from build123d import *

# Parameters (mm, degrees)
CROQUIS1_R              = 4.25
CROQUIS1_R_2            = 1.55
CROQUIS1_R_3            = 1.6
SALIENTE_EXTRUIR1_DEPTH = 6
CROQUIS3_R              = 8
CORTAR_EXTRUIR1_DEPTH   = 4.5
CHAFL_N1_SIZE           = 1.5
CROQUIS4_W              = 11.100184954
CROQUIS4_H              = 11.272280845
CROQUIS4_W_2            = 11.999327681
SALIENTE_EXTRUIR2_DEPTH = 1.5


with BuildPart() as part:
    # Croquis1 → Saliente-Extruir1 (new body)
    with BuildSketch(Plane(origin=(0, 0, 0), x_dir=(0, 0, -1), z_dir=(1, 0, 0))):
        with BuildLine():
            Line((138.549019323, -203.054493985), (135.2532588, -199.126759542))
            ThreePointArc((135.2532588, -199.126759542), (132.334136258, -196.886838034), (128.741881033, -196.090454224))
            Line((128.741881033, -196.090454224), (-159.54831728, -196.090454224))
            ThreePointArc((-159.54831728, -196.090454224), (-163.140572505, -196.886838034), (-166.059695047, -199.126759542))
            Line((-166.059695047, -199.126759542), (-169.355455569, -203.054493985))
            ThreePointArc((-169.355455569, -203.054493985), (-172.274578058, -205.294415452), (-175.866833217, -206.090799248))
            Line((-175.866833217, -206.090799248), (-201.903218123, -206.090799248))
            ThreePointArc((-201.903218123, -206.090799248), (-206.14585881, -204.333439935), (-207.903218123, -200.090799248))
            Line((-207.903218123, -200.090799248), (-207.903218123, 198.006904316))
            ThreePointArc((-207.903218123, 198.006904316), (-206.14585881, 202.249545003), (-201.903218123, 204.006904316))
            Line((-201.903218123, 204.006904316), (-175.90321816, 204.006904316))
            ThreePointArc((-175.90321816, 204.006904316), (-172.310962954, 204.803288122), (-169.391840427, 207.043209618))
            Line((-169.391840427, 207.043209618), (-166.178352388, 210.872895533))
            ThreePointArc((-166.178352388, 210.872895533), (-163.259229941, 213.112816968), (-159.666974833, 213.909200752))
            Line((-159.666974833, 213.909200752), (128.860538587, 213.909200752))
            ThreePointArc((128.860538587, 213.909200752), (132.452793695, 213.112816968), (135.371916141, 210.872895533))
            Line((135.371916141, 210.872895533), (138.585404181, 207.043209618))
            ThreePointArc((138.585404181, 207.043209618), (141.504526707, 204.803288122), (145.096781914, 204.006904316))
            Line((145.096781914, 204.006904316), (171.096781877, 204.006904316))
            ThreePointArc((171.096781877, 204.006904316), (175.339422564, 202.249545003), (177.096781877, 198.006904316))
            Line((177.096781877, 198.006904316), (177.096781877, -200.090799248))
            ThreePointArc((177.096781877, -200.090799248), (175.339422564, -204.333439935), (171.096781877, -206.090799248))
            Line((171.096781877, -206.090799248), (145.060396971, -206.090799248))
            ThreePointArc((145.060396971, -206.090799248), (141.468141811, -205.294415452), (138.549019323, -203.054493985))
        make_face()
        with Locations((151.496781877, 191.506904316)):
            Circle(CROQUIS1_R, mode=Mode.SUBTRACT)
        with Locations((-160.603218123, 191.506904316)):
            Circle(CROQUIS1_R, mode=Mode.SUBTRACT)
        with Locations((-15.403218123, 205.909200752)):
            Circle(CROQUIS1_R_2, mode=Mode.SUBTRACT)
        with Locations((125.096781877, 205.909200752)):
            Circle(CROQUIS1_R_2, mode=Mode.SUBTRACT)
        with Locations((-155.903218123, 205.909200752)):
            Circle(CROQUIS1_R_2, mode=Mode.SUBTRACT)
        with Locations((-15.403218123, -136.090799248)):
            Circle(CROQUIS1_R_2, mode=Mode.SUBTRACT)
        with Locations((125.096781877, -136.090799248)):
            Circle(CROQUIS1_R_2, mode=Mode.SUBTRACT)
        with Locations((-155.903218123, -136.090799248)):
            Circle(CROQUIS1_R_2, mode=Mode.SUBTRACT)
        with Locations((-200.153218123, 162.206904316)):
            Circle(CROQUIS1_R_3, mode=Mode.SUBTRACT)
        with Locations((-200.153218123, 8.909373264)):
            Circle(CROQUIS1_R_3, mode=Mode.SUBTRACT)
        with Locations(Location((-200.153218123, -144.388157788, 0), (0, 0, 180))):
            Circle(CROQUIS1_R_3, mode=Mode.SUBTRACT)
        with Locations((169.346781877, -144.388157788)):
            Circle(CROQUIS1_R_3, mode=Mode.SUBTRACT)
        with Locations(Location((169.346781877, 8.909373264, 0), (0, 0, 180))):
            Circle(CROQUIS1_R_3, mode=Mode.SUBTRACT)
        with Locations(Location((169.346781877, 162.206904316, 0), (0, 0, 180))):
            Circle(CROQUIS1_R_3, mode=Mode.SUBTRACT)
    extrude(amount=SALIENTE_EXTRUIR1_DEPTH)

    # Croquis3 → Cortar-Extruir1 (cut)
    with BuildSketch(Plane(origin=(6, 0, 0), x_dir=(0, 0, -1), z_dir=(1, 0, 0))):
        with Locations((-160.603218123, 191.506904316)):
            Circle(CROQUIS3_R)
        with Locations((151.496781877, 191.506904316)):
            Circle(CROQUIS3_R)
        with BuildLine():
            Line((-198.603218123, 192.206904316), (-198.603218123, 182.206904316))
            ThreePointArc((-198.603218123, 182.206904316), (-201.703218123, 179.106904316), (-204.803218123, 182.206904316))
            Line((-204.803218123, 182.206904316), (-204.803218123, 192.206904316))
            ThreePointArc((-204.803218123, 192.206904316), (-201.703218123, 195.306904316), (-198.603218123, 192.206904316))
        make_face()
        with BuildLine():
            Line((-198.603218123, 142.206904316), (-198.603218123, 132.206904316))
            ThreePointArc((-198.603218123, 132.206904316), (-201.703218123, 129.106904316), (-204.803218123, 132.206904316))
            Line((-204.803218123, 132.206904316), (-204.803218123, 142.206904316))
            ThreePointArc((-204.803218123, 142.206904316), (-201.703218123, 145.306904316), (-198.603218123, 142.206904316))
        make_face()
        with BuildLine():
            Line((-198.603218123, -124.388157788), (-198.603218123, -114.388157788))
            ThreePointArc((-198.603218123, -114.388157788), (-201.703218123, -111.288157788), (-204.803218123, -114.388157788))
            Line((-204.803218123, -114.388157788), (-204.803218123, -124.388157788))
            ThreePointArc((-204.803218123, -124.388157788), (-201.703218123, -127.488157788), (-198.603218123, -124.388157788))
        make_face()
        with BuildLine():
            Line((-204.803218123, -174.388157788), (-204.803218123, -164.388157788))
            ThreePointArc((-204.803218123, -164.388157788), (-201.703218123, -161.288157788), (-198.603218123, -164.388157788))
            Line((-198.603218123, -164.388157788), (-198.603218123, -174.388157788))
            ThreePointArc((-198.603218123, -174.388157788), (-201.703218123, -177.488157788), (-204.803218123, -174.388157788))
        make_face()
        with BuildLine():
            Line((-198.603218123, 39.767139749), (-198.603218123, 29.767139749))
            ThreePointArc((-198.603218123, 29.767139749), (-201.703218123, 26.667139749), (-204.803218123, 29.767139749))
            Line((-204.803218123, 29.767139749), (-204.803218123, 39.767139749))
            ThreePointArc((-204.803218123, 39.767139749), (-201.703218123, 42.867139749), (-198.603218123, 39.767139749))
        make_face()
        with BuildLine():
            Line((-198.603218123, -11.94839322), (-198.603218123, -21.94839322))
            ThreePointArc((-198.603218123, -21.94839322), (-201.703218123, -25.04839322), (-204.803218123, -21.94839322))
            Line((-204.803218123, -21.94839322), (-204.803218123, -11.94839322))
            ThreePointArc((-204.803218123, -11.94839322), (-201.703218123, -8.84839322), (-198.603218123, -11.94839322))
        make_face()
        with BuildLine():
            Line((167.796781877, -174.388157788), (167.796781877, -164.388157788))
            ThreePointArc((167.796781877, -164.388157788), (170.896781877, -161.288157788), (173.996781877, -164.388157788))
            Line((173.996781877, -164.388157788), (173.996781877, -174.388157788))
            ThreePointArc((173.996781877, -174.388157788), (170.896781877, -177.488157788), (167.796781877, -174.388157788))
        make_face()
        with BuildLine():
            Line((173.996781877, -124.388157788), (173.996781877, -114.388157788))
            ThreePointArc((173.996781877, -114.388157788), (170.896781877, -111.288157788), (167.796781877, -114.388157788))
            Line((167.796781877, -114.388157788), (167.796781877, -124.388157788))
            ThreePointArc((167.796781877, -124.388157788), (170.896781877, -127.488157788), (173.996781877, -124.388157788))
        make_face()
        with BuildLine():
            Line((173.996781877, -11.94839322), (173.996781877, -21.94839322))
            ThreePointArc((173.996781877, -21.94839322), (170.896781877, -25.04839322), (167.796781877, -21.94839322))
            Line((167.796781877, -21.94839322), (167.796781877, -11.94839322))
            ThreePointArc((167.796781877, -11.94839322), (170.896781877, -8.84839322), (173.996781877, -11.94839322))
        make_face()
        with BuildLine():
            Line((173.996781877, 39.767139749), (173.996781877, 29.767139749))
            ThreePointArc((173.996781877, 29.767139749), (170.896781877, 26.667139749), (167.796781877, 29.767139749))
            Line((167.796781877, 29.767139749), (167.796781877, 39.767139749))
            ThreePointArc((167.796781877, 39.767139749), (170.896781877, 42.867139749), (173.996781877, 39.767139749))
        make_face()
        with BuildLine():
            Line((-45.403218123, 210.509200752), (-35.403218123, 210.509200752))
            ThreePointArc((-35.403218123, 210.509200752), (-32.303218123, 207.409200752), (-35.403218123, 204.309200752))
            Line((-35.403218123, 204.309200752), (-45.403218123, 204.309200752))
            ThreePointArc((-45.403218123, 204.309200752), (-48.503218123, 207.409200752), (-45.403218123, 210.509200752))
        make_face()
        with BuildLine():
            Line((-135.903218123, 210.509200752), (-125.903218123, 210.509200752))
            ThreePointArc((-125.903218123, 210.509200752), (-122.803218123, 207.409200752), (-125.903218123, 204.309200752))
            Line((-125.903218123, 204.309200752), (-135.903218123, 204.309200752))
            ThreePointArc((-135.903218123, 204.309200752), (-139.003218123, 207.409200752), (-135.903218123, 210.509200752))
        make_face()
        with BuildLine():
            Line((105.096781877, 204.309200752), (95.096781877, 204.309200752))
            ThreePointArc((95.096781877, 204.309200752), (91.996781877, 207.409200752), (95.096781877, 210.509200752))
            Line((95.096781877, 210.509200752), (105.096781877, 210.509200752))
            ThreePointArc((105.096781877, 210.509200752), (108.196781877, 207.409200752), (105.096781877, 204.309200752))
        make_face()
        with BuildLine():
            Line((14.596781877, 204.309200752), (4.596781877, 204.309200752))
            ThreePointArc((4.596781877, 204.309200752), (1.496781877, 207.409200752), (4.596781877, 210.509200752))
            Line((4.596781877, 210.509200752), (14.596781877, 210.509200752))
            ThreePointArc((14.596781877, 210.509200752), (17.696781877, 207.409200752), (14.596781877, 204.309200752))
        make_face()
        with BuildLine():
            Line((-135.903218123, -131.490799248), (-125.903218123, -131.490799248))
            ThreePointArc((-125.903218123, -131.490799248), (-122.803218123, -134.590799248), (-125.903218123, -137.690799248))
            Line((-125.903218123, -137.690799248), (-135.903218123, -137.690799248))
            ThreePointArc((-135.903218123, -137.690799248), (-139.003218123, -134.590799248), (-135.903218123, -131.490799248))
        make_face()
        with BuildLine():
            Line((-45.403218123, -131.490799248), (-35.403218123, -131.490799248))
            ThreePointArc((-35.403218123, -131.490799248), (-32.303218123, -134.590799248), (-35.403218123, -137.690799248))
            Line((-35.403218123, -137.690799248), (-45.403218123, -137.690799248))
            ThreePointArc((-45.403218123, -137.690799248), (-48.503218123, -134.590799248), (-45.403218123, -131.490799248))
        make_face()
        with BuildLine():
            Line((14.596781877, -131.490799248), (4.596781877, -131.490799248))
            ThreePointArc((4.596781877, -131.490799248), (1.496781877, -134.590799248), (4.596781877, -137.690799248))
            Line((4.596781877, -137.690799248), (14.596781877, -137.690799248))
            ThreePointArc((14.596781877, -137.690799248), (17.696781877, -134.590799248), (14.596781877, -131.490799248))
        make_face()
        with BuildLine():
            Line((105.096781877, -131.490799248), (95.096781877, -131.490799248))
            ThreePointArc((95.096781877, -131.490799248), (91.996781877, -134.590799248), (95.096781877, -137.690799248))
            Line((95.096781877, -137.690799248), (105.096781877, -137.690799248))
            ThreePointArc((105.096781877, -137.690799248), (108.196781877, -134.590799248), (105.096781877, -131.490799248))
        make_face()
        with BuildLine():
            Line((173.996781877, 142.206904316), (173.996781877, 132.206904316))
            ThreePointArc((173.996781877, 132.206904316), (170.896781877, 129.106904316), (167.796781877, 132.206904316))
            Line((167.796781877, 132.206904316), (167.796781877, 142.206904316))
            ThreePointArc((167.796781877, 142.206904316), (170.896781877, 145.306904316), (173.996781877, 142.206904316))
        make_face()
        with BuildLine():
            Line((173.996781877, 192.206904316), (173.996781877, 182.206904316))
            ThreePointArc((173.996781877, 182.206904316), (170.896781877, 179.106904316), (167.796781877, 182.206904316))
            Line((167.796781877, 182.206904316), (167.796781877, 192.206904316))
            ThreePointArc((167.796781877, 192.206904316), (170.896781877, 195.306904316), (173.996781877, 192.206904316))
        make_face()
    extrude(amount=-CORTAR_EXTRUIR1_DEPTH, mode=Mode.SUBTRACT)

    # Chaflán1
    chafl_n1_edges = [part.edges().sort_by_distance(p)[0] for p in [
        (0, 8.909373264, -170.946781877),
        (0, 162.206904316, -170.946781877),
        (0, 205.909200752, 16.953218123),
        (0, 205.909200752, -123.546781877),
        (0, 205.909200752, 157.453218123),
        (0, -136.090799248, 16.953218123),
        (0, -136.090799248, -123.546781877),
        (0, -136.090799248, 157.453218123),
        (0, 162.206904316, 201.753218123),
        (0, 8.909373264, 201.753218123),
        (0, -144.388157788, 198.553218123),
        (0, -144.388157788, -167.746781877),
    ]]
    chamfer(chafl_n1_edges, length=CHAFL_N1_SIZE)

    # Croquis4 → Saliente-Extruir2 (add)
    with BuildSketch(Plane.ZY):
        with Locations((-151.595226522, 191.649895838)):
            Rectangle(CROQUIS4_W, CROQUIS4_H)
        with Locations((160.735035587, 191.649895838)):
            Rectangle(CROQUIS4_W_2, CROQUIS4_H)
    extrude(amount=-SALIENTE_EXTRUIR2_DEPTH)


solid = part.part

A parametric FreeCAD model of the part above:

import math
import FreeCAD as App
import Part
import Sketcher
Q = App.Units.Quantity


def edges_at(feature, points):
    """Names of the edges that pass closest to the given points."""
    edges = feature.Shape.Edges
    near = lambda p: min(range(len(edges)), key=lambda i: edges[i].distToShape(Part.Vertex(*p))[0])
    return sorted({f"Edge{near(p) + 1}" for p in points})


def add_polygon(sketch, points):
    """Adds a closed chain of lines whose ends are joined by coincident constraints."""
    first, n = sketch.GeometryCount, len(points)
    for a, b in zip(points, points[1:] + points[:1]):
        sketch.addGeometry(Part.LineSegment(App.Vector(*a, 0), App.Vector(*b, 0)), False)
    for i in range(n):
        sketch.addConstraint(Sketcher.Constraint("Coincident", first + i, 2, first + (i + 1) % n, 1))

doc = App.newDocument("Part")
params = doc.addObject("Spreadsheet::Sheet", "Params")
for row, (alias, value) in enumerate([
    ("sketch1_radius", "6 mm"),
    ("sketch1_diameter", "3.2 mm"),
    ("sketch1_diameter2", "3.1 mm"),
    ("sketch1_diameter3", "8.5 mm"),
    ("sketch1_radius2", "8.5 mm"),
    ("pad1_length", "6 mm"),
    ("sketch2_diameter", "16 mm"),
    ("sketch2_radius", "3.1 mm"),
    ("sketch2_width", "10 mm"),
    ("pocket1_length", "4.5 mm"),
    ("chamfer_size", "1.5 mm"),
    ("pad2_length", "1.5 mm"),
], start=1):
    params.set(f"A{row}", alias)
    params.set(f"B{row}", "=" + value)
    params.setAlias(f"B{row}", alias)

body = doc.addObject("PartDesign::Body", "Body")

# Sketch on YZ plane
sketch1 = body.newObject("Sketcher::SketchObject", "Sketch")
sketch1.AttachmentSupport = (doc.getObject("YZ_Plane"), [""])
sketch1.MapMode = "FlatFace"
sketch1.addGeometry([
    Part.LineSegment(App.Vector(-199.12676, -135.253259, 0), App.Vector(-203.054494, -138.549019, 0)),  # 0
    Part.ArcOfCircle(Part.Circle(App.Vector(-197.590799, -145.060397, 0), App.Vector(0, 0, 1), 8.5), math.radians(130), math.radians(180)),  # 1
    Part.LineSegment(App.Vector(-206.090799, -145.060397, 0), App.Vector(-206.090799, -171.096782, 0)),  # 2
    Part.ArcOfCircle(Part.Circle(App.Vector(-200.090799, -171.096782, 0), App.Vector(0, 0, 1), 6), math.radians(180), math.radians(270)),  # 3
    Part.LineSegment(App.Vector(-200.090799, -177.096782, 0), App.Vector(198.006904, -177.096782, 0)),  # 4
    Part.ArcOfCircle(Part.Circle(App.Vector(198.006904, -171.096782, 0), App.Vector(0, 0, 1), 6), math.radians(-90), math.radians(0)),  # 5
    Part.LineSegment(App.Vector(204.006904, -171.096782, 0), App.Vector(204.006904, -145.096782, 0)),  # 6
    Part.ArcOfCircle(Part.Circle(App.Vector(212.506904, -145.096782, 0), App.Vector(0, 0, 1), 8.5), math.radians(130), math.radians(180)),  # 7
    Part.LineSegment(App.Vector(207.04321, -138.585404, 0), App.Vector(210.872896, -135.371916, 0)),  # 8
    Part.ArcOfCircle(Part.Circle(App.Vector(205.409201, -128.860539, 0), App.Vector(0, 0, 1), 8.5), math.radians(-50), math.radians(0)),  # 9
    Part.LineSegment(App.Vector(213.909201, -128.860539, 0), App.Vector(213.909201, 159.666975, 0)),  # 10
    Part.ArcOfCircle(Part.Circle(App.Vector(205.409201, 159.666975, 0), App.Vector(0, 0, 1), 8.5), math.radians(0), math.radians(50)),  # 11
    Part.LineSegment(App.Vector(210.872896, 166.178352, 0), App.Vector(207.04321, 169.39184, 0)),  # 12
    Part.ArcOfCircle(Part.Circle(App.Vector(212.506904, 175.903218, 0), App.Vector(0, 0, 1), 8.5), math.radians(180), math.radians(230)),  # 13
    Part.LineSegment(App.Vector(204.006904, 175.903218, 0), App.Vector(204.006904, 201.903218, 0)),  # 14
    Part.ArcOfCircle(Part.Circle(App.Vector(198.006904, 201.903218, 0), App.Vector(0, 0, 1), 6), math.radians(0), math.radians(90)),  # 15
    Part.LineSegment(App.Vector(198.006904, 207.903218, 0), App.Vector(-200.090799, 207.903218, 0)),  # 16
    Part.ArcOfCircle(Part.Circle(App.Vector(-200.090799, 201.903218, 0), App.Vector(0, 0, 1), 6), math.radians(90), math.radians(180)),  # 17
    Part.LineSegment(App.Vector(-206.090799, 201.903218, 0), App.Vector(-206.090799, 175.866833, 0)),  # 18
    Part.ArcOfCircle(Part.Circle(App.Vector(-197.590799, 175.866833, 0), App.Vector(0, 0, 1), 8.5), math.radians(-180), math.radians(-130)),  # 19
    Part.LineSegment(App.Vector(-203.054494, 169.355456, 0), App.Vector(-199.12676, 166.059695, 0)),  # 20
    Part.ArcOfCircle(Part.Circle(App.Vector(-204.590454, 159.548317, 0), App.Vector(0, 0, 1), 8.5), math.radians(0), math.radians(50)),  # 21
    Part.LineSegment(App.Vector(-196.090454, 159.548317, 0), App.Vector(-196.090454, -128.741881, 0)),  # 22
    Part.ArcOfCircle(Part.Circle(App.Vector(-204.590454, -128.741881, 0), App.Vector(0, 0, 1), 8.5), math.radians(-50), math.radians(0)),  # 23
    Part.Circle(App.Vector(-144.388158, -169.346782, 0), App.Vector(0, 0, 1), 1.6),  # 24
    Part.Circle(App.Vector(-136.090799, -125.096782, 0), App.Vector(0, 0, 1), 1.55),  # 25
    Part.Circle(App.Vector(8.909373, -169.346782, 0), App.Vector(0, 0, 1), 1.6),  # 26
    Part.Circle(App.Vector(-136.090799, 15.403218, 0), App.Vector(0, 0, 1), 1.55),  # 27
    Part.Circle(App.Vector(-136.090799, 155.903218, 0), App.Vector(0, 0, 1), 1.55),  # 28
    Part.Circle(App.Vector(-144.388158, 200.153218, 0), App.Vector(0, 0, 1), 1.6),  # 29
    Part.Circle(App.Vector(8.909373, 200.153218, 0), App.Vector(0, 0, 1), 1.6),  # 30
    Part.Circle(App.Vector(162.206904, -169.346782, 0), App.Vector(0, 0, 1), 1.6),  # 31
    Part.Circle(App.Vector(191.506904, -151.496782, 0), App.Vector(0, 0, 1), 4.25),  # 32
    Part.Circle(App.Vector(205.909201, -125.096782, 0), App.Vector(0, 0, 1), 1.55),  # 33
    Part.Circle(App.Vector(205.909201, 15.403218, 0), App.Vector(0, 0, 1), 1.55),  # 34
    Part.Circle(App.Vector(162.206904, 200.153218, 0), App.Vector(0, 0, 1), 1.6),  # 35
    Part.Circle(App.Vector(191.506904, 160.603218, 0), App.Vector(0, 0, 1), 4.25),  # 36
    Part.Circle(App.Vector(205.909201, 155.903218, 0), App.Vector(0, 0, 1), 1.55),  # 37
], False)
sketch1.addConstraint([
    Sketcher.Constraint("Tangent", 0, 2, 1, 1),
    Sketcher.Constraint("Tangent", 1, 2, 2, 1),
    Sketcher.Constraint("Tangent", 2, 2, 3, 1),
    Sketcher.Constraint("Tangent", 3, 2, 4, 1),
    Sketcher.Constraint("Tangent", 4, 2, 5, 1),
    Sketcher.Constraint("Tangent", 5, 2, 6, 1),
    Sketcher.Constraint("Tangent", 6, 2, 7, 2),
    Sketcher.Constraint("Tangent", 7, 1, 8, 1),
    Sketcher.Constraint("Tangent", 8, 2, 9, 1),
    Sketcher.Constraint("Tangent", 9, 2, 10, 1),
    Sketcher.Constraint("Tangent", 10, 2, 11, 1),
    Sketcher.Constraint("Tangent", 11, 2, 12, 1),
    Sketcher.Constraint("Tangent", 12, 2, 13, 2),
    Sketcher.Constraint("Tangent", 13, 1, 14, 1),
    Sketcher.Constraint("Tangent", 14, 2, 15, 1),
    Sketcher.Constraint("Tangent", 15, 2, 16, 1),
    Sketcher.Constraint("Tangent", 16, 2, 17, 1),
    Sketcher.Constraint("Tangent", 17, 2, 18, 1),
    Sketcher.Constraint("Tangent", 18, 2, 19, 1),
    Sketcher.Constraint("Tangent", 19, 2, 20, 1),
    Sketcher.Constraint("Tangent", 20, 2, 21, 2),
    Sketcher.Constraint("Tangent", 21, 1, 22, 1),
    Sketcher.Constraint("Tangent", 22, 2, 23, 2),
    Sketcher.Constraint("Tangent", 23, 1, 0, 1),
    Sketcher.Constraint("Vertical", 2),
    Sketcher.Constraint("Horizontal", 4),
    Sketcher.Constraint("Vertical", 6),
    Sketcher.Constraint("Vertical", 10),
    Sketcher.Constraint("Vertical", 14),
    Sketcher.Constraint("Horizontal", 16),
    Sketcher.Constraint("Vertical", 18),
    Sketcher.Constraint("Vertical", 22),
    Sketcher.Constraint("Equal", 3, 5),
    Sketcher.Constraint("Equal", 1, 7),
    Sketcher.Constraint("Equal", 7, 9),
    Sketcher.Constraint("Equal", 9, 11),
    Sketcher.Constraint("Equal", 11, 13),
    Sketcher.Constraint("Equal", 5, 15),
    Sketcher.Constraint("Equal", 15, 17),
    Sketcher.Constraint("Equal", 13, 19),
    Sketcher.Constraint("Equal", 19, 21),
    Sketcher.Constraint("Equal", 21, 23),
    Sketcher.Constraint("Equal", 24, 26),
    Sketcher.Constraint("Equal", 25, 27),
    Sketcher.Constraint("Equal", 27, 28),
    Sketcher.Constraint("Equal", 26, 29),
    Sketcher.Constraint("Equal", 29, 30),
    Sketcher.Constraint("Equal", 30, 31),
    Sketcher.Constraint("Equal", 28, 33),
    Sketcher.Constraint("Equal", 33, 34),
    Sketcher.Constraint("Equal", 31, 35),
    Sketcher.Constraint("Equal", 32, 36),
    Sketcher.Constraint("Equal", 34, 37),
    Sketcher.Constraint("Parallel", 0, 8),
    Sketcher.Constraint("Parallel", 12, 20),
    Sketcher.Constraint("Horizontal", 24, 3, 26, 3),
    Sketcher.Constraint("Horizontal", 29, 3, 30, 3),
    Sketcher.Constraint("Horizontal", 26, 3, 31, 3),
    Sketcher.Constraint("Horizontal", 25, 3, 33, 3),
    Sketcher.Constraint("Horizontal", 27, 3, 34, 3),
    Sketcher.Constraint("Horizontal", 30, 3, 35, 3),
    Sketcher.Constraint("Horizontal", 28, 3, 37, 3),
    Sketcher.Constraint("Vertical", 7, 3, 13, 3),
    Sketcher.Constraint("Vertical", 3, 3, 17, 3),
    Sketcher.Constraint("Vertical", 25, 3, 27, 3),
    Sketcher.Constraint("Vertical", 27, 3, 28, 3),
    Sketcher.Constraint("Vertical", 24, 3, 29, 3),
    Sketcher.Constraint("Vertical", 26, 3, 30, 3),
    Sketcher.Constraint("Vertical", 33, 3, 34, 3),
    Sketcher.Constraint("Vertical", 31, 3, 35, 3),
    Sketcher.Constraint("Vertical", 32, 3, 36, 3),
    Sketcher.Constraint("Vertical", 34, 3, 37, 3),
    Sketcher.Constraint("Vertical", 8, 2, 11, 2),
    Sketcher.Constraint("Equal", 6, 14),
    Sketcher.Constraint("Equal", 2, 18),
    Sketcher.Constraint("Radius", 3, Q("6 mm")),
    Sketcher.Constraint("Diameter", 24, Q("3.2 mm")),
    Sketcher.Constraint("Diameter", 25, Q("3.1 mm")),
    Sketcher.Constraint("Diameter", 32, Q("8.5 mm")),
    Sketcher.Constraint("Radius", 1, Q("8.5 mm")),
    Sketcher.Constraint("DistanceY", 6, 1, 6, 2, Q("26 mm")),
    Sketcher.Constraint("Angle", 0, Q("-140 deg")),
    Sketcher.Constraint("DistanceX", 1, 3, 9, 3, Q("403 mm")),
    Sketcher.Constraint("DistanceY", 7, 3, 13, 3, Q("321 mm")),
    Sketcher.Constraint("DistanceX", 3, 3, 25, 3, Q("64 mm")),
    Sketcher.Constraint("DistanceY", 3, 3, 25, 3, Q("46 mm")),
    Sketcher.Constraint("DistanceY", 28, 3, 17, 3, Q("46 mm")),
    Sketcher.Constraint("DistanceX", 32, 3, 7, 3, Q("21 mm")),
    Sketcher.Constraint("DistanceX", 33, 3, 9, 2, Q("8 mm")),
    Sketcher.Constraint("DistanceY", 25, 3, 27, 3, Q("140.5 mm")),
    Sketcher.Constraint("DistanceX", 31, 3, 5, 3, Q("35.8 mm")),
    Sketcher.Constraint("DistanceY", 5, 3, 32, 3, Q("19.6 mm")),
    Sketcher.Constraint("DistanceY", 36, 3, 13, 3, Q("15.3 mm")),
    Sketcher.Constraint("DistanceY", 3, 3, 24, 3, Q("1.75 mm")),
    Sketcher.Constraint("DistanceY", 28, 3, 29, 3, Q("44.25 mm")),
    Sketcher.Constraint("DistanceY", 22, 2, 22, 1, Q("288.290198 mm")),
    Sketcher.Constraint("Distance", 8, Q("4.9993 mm")),
    Sketcher.Constraint("DistanceX", 1, 3, -1, 1, Q("197.590799 mm")),
    Sketcher.Constraint("DistanceY", 2, 2, 2, 1, Q("26.036385 mm")),
    Sketcher.Constraint("DistanceY", 3, 3, -1, 1, Q("171.096782 mm")),
    Sketcher.Constraint("DistanceX", 3, 3, 24, 3, Q("55.702641 mm")),
    Sketcher.Constraint("DistanceX", 24, 3, 26, 3, Q("153.297531 mm")),
])
sketch1.setExpression("Constraints[75]", "Params.sketch1_radius")
sketch1.setExpression("Constraints[76]", "Params.sketch1_diameter")
sketch1.setExpression("Constraints[77]", "Params.sketch1_diameter2")
sketch1.setExpression("Constraints[78]", "Params.sketch1_diameter3")
sketch1.setExpression("Constraints[79]", "Params.sketch1_radius2")
pad1 = body.newObject("PartDesign::Pad", "Pad")
pad1.Profile = sketch1
pad1.setExpression("Length", "Params.pad1_length")

# Sketch on YZ plane
sketch2 = body.newObject("Sketcher::SketchObject", "Sketch001")
sketch2.AttachmentSupport = (doc.getObject("YZ_Plane"), [""])
sketch2.MapMode = "FlatFace"
sketch2.AttachmentOffset = App.Placement(App.Vector(0, 0, 6), App.Rotation())
sketch2.addGeometry([
    Part.Circle(App.Vector(191.506904, 160.603218, 0), App.Vector(0, 0, 1), 8),  # 0
    Part.Circle(App.Vector(191.506904, -151.496782, 0), App.Vector(0, 0, 1), 8),  # 1
    Part.LineSegment(App.Vector(182.206904, 198.603218, 0), App.Vector(192.206904, 198.603218, 0)),  # 2
    Part.ArcOfCircle(Part.Circle(App.Vector(192.206904, 201.703218, 0), App.Vector(0, 0, 1), 3.1), math.radians(-90), math.radians(90)),  # 3
    Part.LineSegment(App.Vector(192.206904, 204.803218, 0), App.Vector(182.206904, 204.803218, 0)),  # 4
    Part.ArcOfCircle(Part.Circle(App.Vector(182.206904, 201.703218, 0), App.Vector(0, 0, 1), 3.1), math.radians(90), math.radians(270)),  # 5
    Part.LineSegment(App.Vector(132.206904, 198.603218, 0), App.Vector(142.206904, 198.603218, 0)),  # 6
    Part.ArcOfCircle(Part.Circle(App.Vector(142.206904, 201.703218, 0), App.Vector(0, 0, 1), 3.1), math.radians(-90), math.radians(90)),  # 7
    Part.LineSegment(App.Vector(142.206904, 204.803218, 0), App.Vector(132.206904, 204.803218, 0)),  # 8
    Part.ArcOfCircle(Part.Circle(App.Vector(132.206904, 201.703218, 0), App.Vector(0, 0, 1), 3.1), math.radians(90), math.radians(270)),  # 9
    Part.LineSegment(App.Vector(-124.388158, 198.603218, 0), App.Vector(-114.388158, 198.603218, 0)),  # 10
    Part.ArcOfCircle(Part.Circle(App.Vector(-114.388158, 201.703218, 0), App.Vector(0, 0, 1), 3.1), math.radians(-90), math.radians(90)),  # 11
    Part.LineSegment(App.Vector(-114.388158, 204.803218, 0), App.Vector(-124.388158, 204.803218, 0)),  # 12
    Part.ArcOfCircle(Part.Circle(App.Vector(-124.388158, 201.703218, 0), App.Vector(0, 0, 1), 3.1), math.radians(90), math.radians(270)),  # 13
    Part.LineSegment(App.Vector(-164.388158, 204.803218, 0), App.Vector(-174.388158, 204.803218, 0)),  # 14
    Part.ArcOfCircle(Part.Circle(App.Vector(-174.388158, 201.703218, 0), App.Vector(0, 0, 1), 3.1), math.radians(90), math.radians(270)),  # 15
    Part.LineSegment(App.Vector(-174.388158, 198.603218, 0), App.Vector(-164.388158, 198.603218, 0)),  # 16
    Part.ArcOfCircle(Part.Circle(App.Vector(-164.388158, 201.703218, 0), App.Vector(0, 0, 1), 3.1), math.radians(-90), math.radians(90)),  # 17
    Part.LineSegment(App.Vector(29.76714, 198.603218, 0), App.Vector(39.76714, 198.603218, 0)),  # 18
    Part.ArcOfCircle(Part.Circle(App.Vector(39.76714, 201.703218, 0), App.Vector(0, 0, 1), 3.1), math.radians(-90), math.radians(90)),  # 19
    Part.LineSegment(App.Vector(39.76714, 204.803218, 0), App.Vector(29.76714, 204.803218, 0)),  # 20
    Part.ArcOfCircle(Part.Circle(App.Vector(29.76714, 201.703218, 0), App.Vector(0, 0, 1), 3.1), math.radians(90), math.radians(270)),  # 21
    Part.LineSegment(App.Vector(-21.948393, 198.603218, 0), App.Vector(-11.948393, 198.603218, 0)),  # 22
    Part.ArcOfCircle(Part.Circle(App.Vector(-11.948393, 201.703218, 0), App.Vector(0, 0, 1), 3.1), math.radians(-90), math.radians(90)),  # 23
    Part.LineSegment(App.Vector(-11.948393, 204.803218, 0), App.Vector(-21.948393, 204.803218, 0)),  # 24
    Part.ArcOfCircle(Part.Circle(App.Vector(-21.948393, 201.703218, 0), App.Vector(0, 0, 1), 3.1), math.radians(90), math.radians(270)),  # 25
    Part.LineSegment(App.Vector(-164.388158, -167.796782, 0), App.Vector(-174.388158, -167.796782, 0)),  # 26
    Part.ArcOfCircle(Part.Circle(App.Vector(-174.388158, -170.896782, 0), App.Vector(0, 0, 1), 3.1), math.radians(90), math.radians(270)),  # 27
    Part.LineSegment(App.Vector(-174.388158, -173.996782, 0), App.Vector(-164.388158, -173.996782, 0)),  # 28
    Part.ArcOfCircle(Part.Circle(App.Vector(-164.388158, -170.896782, 0), App.Vector(0, 0, 1), 3.1), math.radians(-90), math.radians(90)),  # 29
    Part.LineSegment(App.Vector(-124.388158, -173.996782, 0), App.Vector(-114.388158, -173.996782, 0)),  # 30
    Part.ArcOfCircle(Part.Circle(App.Vector(-114.388158, -170.896782, 0), App.Vector(0, 0, 1), 3.1), math.radians(-90), math.radians(90)),  # 31
    Part.LineSegment(App.Vector(-114.388158, -167.796782, 0), App.Vector(-124.388158, -167.796782, 0)),  # 32
    Part.ArcOfCircle(Part.Circle(App.Vector(-124.388158, -170.896782, 0), App.Vector(0, 0, 1), 3.1), math.radians(90), math.radians(270)),  # 33
    Part.LineSegment(App.Vector(-21.948393, -173.996782, 0), App.Vector(-11.948393, -173.996782, 0)),  # 34
    Part.ArcOfCircle(Part.Circle(App.Vector(-11.948393, -170.896782, 0), App.Vector(0, 0, 1), 3.1), math.radians(-90), math.radians(90)),  # 35
    Part.LineSegment(App.Vector(-11.948393, -167.796782, 0), App.Vector(-21.948393, -167.796782, 0)),  # 36
    Part.ArcOfCircle(Part.Circle(App.Vector(-21.948393, -170.896782, 0), App.Vector(0, 0, 1), 3.1), math.radians(90), math.radians(270)),  # 37
    Part.LineSegment(App.Vector(29.76714, -173.996782, 0), App.Vector(39.76714, -173.996782, 0)),  # 38
    Part.ArcOfCircle(Part.Circle(App.Vector(39.76714, -170.896782, 0), App.Vector(0, 0, 1), 3.1), math.radians(-90), math.radians(90)),  # 39
    Part.LineSegment(App.Vector(39.76714, -167.796782, 0), App.Vector(29.76714, -167.796782, 0)),  # 40
    Part.ArcOfCircle(Part.Circle(App.Vector(29.76714, -170.896782, 0), App.Vector(0, 0, 1), 3.1), math.radians(90), math.radians(270)),  # 41
    Part.LineSegment(App.Vector(210.509201, 35.403218, 0), App.Vector(210.509201, 45.403218, 0)),  # 42
    Part.ArcOfCircle(Part.Circle(App.Vector(207.409201, 45.403218, 0), App.Vector(0, 0, 1), 3.1), math.radians(0), math.radians(180)),  # 43
    Part.LineSegment(App.Vector(204.309201, 45.403218, 0), App.Vector(204.309201, 35.403218, 0)),  # 44
    Part.ArcOfCircle(Part.Circle(App.Vector(207.409201, 35.403218, 0), App.Vector(0, 0, 1), 3.1), math.radians(180), math.radians(360)),  # 45
    Part.LineSegment(App.Vector(210.509201, 125.903218, 0), App.Vector(210.509201, 135.903218, 0)),  # 46
    Part.ArcOfCircle(Part.Circle(App.Vector(207.409201, 135.903218, 0), App.Vector(0, 0, 1), 3.1), math.radians(0), math.radians(180)),  # 47
    Part.LineSegment(App.Vector(204.309201, 135.903218, 0), App.Vector(204.309201, 125.903218, 0)),  # 48
    Part.ArcOfCircle(Part.Circle(App.Vector(207.409201, 125.903218, 0), App.Vector(0, 0, 1), 3.1), math.radians(180), math.radians(360)),  # 49
    Part.LineSegment(App.Vector(204.309201, -95.096782, 0), App.Vector(204.309201, -105.096782, 0)),  # 50
    Part.ArcOfCircle(Part.Circle(App.Vector(207.409201, -105.096782, 0), App.Vector(0, 0, 1), 3.1), math.radians(180), math.radians(360)),  # 51
    Part.LineSegment(App.Vector(210.509201, -105.096782, 0), App.Vector(210.509201, -95.096782, 0)),  # 52
    Part.ArcOfCircle(Part.Circle(App.Vector(207.409201, -95.096782, 0), App.Vector(0, 0, 1), 3.1), math.radians(0), math.radians(180)),  # 53
    Part.LineSegment(App.Vector(204.309201, -4.596782, 0), App.Vector(204.309201, -14.596782, 0)),  # 54
    Part.ArcOfCircle(Part.Circle(App.Vector(207.409201, -14.596782, 0), App.Vector(0, 0, 1), 3.1), math.radians(180), math.radians(360)),  # 55
    Part.LineSegment(App.Vector(210.509201, -14.596782, 0), App.Vector(210.509201, -4.596782, 0)),  # 56
    Part.ArcOfCircle(Part.Circle(App.Vector(207.409201, -4.596782, 0), App.Vector(0, 0, 1), 3.1), math.radians(0), math.radians(180)),  # 57
    Part.LineSegment(App.Vector(-131.490799, 125.903218, 0), App.Vector(-131.490799, 135.903218, 0)),  # 58
    Part.ArcOfCircle(Part.Circle(App.Vector(-134.590799, 135.903218, 0), App.Vector(0, 0, 1), 3.1), math.radians(0), math.radians(180)),  # 59
    Part.LineSegment(App.Vector(-137.690799, 135.903218, 0), App.Vector(-137.690799, 125.903218, 0)),  # 60
    Part.ArcOfCircle(Part.Circle(App.Vector(-134.590799, 125.903218, 0), App.Vector(0, 0, 1), 3.1), math.radians(180), math.radians(360)),  # 61
    Part.LineSegment(App.Vector(-131.490799, 35.403218, 0), App.Vector(-131.490799, 45.403218, 0)),  # 62
    Part.ArcOfCircle(Part.Circle(App.Vector(-134.590799, 45.403218, 0), App.Vector(0, 0, 1), 3.1), math.radians(0), math.radians(180)),  # 63
    Part.LineSegment(App.Vector(-137.690799, 45.403218, 0), App.Vector(-137.690799, 35.403218, 0)),  # 64
    Part.ArcOfCircle(Part.Circle(App.Vector(-134.590799, 35.403218, 0), App.Vector(0, 0, 1), 3.1), math.radians(180), math.radians(360)),  # 65
    Part.LineSegment(App.Vector(-131.490799, -14.596782, 0), App.Vector(-131.490799, -4.596782, 0)),  # 66
    Part.ArcOfCircle(Part.Circle(App.Vector(-134.590799, -4.596782, 0), App.Vector(0, 0, 1), 3.1), math.radians(0), math.radians(180)),  # 67
    Part.LineSegment(App.Vector(-137.690799, -4.596782, 0), App.Vector(-137.690799, -14.596782, 0)),  # 68
    Part.ArcOfCircle(Part.Circle(App.Vector(-134.590799, -14.596782, 0), App.Vector(0, 0, 1), 3.1), math.radians(180), math.radians(360)),  # 69
    Part.LineSegment(App.Vector(-131.490799, -105.096782, 0), App.Vector(-131.490799, -95.096782, 0)),  # 70
    Part.ArcOfCircle(Part.Circle(App.Vector(-134.590799, -95.096782, 0), App.Vector(0, 0, 1), 3.1), math.radians(0), math.radians(180)),  # 71
    Part.LineSegment(App.Vector(-137.690799, -95.096782, 0), App.Vector(-137.690799, -105.096782, 0)),  # 72
    Part.ArcOfCircle(Part.Circle(App.Vector(-134.590799, -105.096782, 0), App.Vector(0, 0, 1), 3.1), math.radians(180), math.radians(360)),  # 73
    Part.LineSegment(App.Vector(132.206904, -173.996782, 0), App.Vector(142.206904, -173.996782, 0)),  # 74
    Part.ArcOfCircle(Part.Circle(App.Vector(142.206904, -170.896782, 0), App.Vector(0, 0, 1), 3.1), math.radians(-90), math.radians(90)),  # 75
    Part.LineSegment(App.Vector(142.206904, -167.796782, 0), App.Vector(132.206904, -167.796782, 0)),  # 76
    Part.ArcOfCircle(Part.Circle(App.Vector(132.206904, -170.896782, 0), App.Vector(0, 0, 1), 3.1), math.radians(90), math.radians(270)),  # 77
    Part.LineSegment(App.Vector(182.206904, -173.996782, 0), App.Vector(192.206904, -173.996782, 0)),  # 78
    Part.ArcOfCircle(Part.Circle(App.Vector(192.206904, -170.896782, 0), App.Vector(0, 0, 1), 3.1), math.radians(-90), math.radians(90)),  # 79
    Part.LineSegment(App.Vector(192.206904, -167.796782, 0), App.Vector(182.206904, -167.796782, 0)),  # 80
    Part.ArcOfCircle(Part.Circle(App.Vector(182.206904, -170.896782, 0), App.Vector(0, 0, 1), 3.1), math.radians(90), math.radians(270)),  # 81
], False)
sketch2.addConstraint([
    Sketcher.Constraint("Tangent", 2, 2, 3, 1),
    Sketcher.Constraint("Tangent", 3, 2, 4, 1),
    Sketcher.Constraint("Tangent", 4, 2, 5, 1),
    Sketcher.Constraint("Tangent", 5, 2, 2, 1),
    Sketcher.Constraint("Tangent", 6, 2, 7, 1),
    Sketcher.Constraint("Tangent", 7, 2, 8, 1),
    Sketcher.Constraint("Tangent", 8, 2, 9, 1),
    Sketcher.Constraint("Tangent", 9, 2, 6, 1),
    Sketcher.Constraint("Tangent", 10, 2, 11, 1),
    Sketcher.Constraint("Tangent", 11, 2, 12, 1),
    Sketcher.Constraint("Tangent", 12, 2, 13, 1),
    Sketcher.Constraint("Tangent", 13, 2, 10, 1),
    Sketcher.Constraint("Tangent", 14, 2, 15, 1),
    Sketcher.Constraint("Tangent", 15, 2, 16, 1),
    Sketcher.Constraint("Tangent", 16, 2, 17, 1),
    Sketcher.Constraint("Tangent", 17, 2, 14, 1),
    Sketcher.Constraint("Tangent", 18, 2, 19, 1),
    Sketcher.Constraint("Tangent", 19, 2, 20, 1),
    Sketcher.Constraint("Tangent", 20, 2, 21, 1),
    Sketcher.Constraint("Tangent", 21, 2, 18, 1),
    Sketcher.Constraint("Tangent", 22, 2, 23, 1),
    Sketcher.Constraint("Tangent", 23, 2, 24, 1),
    Sketcher.Constraint("Tangent", 24, 2, 25, 1),
    Sketcher.Constraint("Tangent", 25, 2, 22, 1),
    Sketcher.Constraint("Tangent", 26, 2, 27, 1),
    Sketcher.Constraint("Tangent", 27, 2, 28, 1),
    Sketcher.Constraint("Tangent", 28, 2, 29, 1),
    Sketcher.Constraint("Tangent", 29, 2, 26, 1),
    Sketcher.Constraint("Tangent", 30, 2, 31, 1),
    Sketcher.Constraint("Tangent", 31, 2, 32, 1),
    Sketcher.Constraint("Tangent", 32, 2, 33, 1),
    Sketcher.Constraint("Tangent", 33, 2, 30, 1),
    Sketcher.Constraint("Tangent", 34, 2, 35, 1),
    Sketcher.Constraint("Tangent", 35, 2, 36, 1),
    Sketcher.Constraint("Tangent", 36, 2, 37, 1),
    Sketcher.Constraint("Tangent", 37, 2, 34, 1),
    Sketcher.Constraint("Tangent", 38, 2, 39, 1),
    Sketcher.Constraint("Tangent", 39, 2, 40, 1),
    Sketcher.Constraint("Tangent", 40, 2, 41, 1),
    Sketcher.Constraint("Tangent", 41, 2, 38, 1),
    Sketcher.Constraint("Tangent", 42, 2, 43, 1),
    Sketcher.Constraint("Tangent", 43, 2, 44, 1),
    Sketcher.Constraint("Tangent", 44, 2, 45, 1),
    Sketcher.Constraint("Tangent", 45, 2, 42, 1),
    Sketcher.Constraint("Tangent", 46, 2, 47, 1),
    Sketcher.Constraint("Tangent", 47, 2, 48, 1),
    Sketcher.Constraint("Tangent", 48, 2, 49, 1),
    Sketcher.Constraint("Tangent", 49, 2, 46, 1),
    Sketcher.Constraint("Tangent", 50, 2, 51, 1),
    Sketcher.Constraint("Tangent", 51, 2, 52, 1),
    Sketcher.Constraint("Tangent", 52, 2, 53, 1),
    Sketcher.Constraint("Tangent", 53, 2, 50, 1),
    Sketcher.Constraint("Tangent", 54, 2, 55, 1),
    Sketcher.Constraint("Tangent", 55, 2, 56, 1),
    Sketcher.Constraint("Tangent", 56, 2, 57, 1),
    Sketcher.Constraint("Tangent", 57, 2, 54, 1),
    Sketcher.Constraint("Tangent", 58, 2, 59, 1),
    Sketcher.Constraint("Tangent", 59, 2, 60, 1),
    Sketcher.Constraint("Tangent", 60, 2, 61, 1),
    Sketcher.Constraint("Tangent", 61, 2, 58, 1),
    Sketcher.Constraint("Tangent", 62, 2, 63, 1),
    Sketcher.Constraint("Tangent", 63, 2, 64, 1),
    Sketcher.Constraint("Tangent", 64, 2, 65, 1),
    Sketcher.Constraint("Tangent", 65, 2, 62, 1),
    Sketcher.Constraint("Tangent", 66, 2, 67, 1),
    Sketcher.Constraint("Tangent", 67, 2, 68, 1),
    Sketcher.Constraint("Tangent", 68, 2, 69, 1),
    Sketcher.Constraint("Tangent", 69, 2, 66, 1),
    Sketcher.Constraint("Tangent", 70, 2, 71, 1),
    Sketcher.Constraint("Tangent", 71, 2, 72, 1),
    Sketcher.Constraint("Tangent", 72, 2, 73, 1),
    Sketcher.Constraint("Tangent", 73, 2, 70, 1),
    Sketcher.Constraint("Tangent", 74, 2, 75, 1),
    Sketcher.Constraint("Tangent", 75, 2, 76, 1),
    Sketcher.Constraint("Tangent", 76, 2, 77, 1),
    Sketcher.Constraint("Tangent", 77, 2, 74, 1),
    Sketcher.Constraint("Tangent", 78, 2, 79, 1),
    Sketcher.Constraint("Tangent", 79, 2, 80, 1),
    Sketcher.Constraint("Tangent", 80, 2, 81, 1),
    Sketcher.Constraint("Tangent", 81, 2, 78, 1),
    Sketcher.Constraint("Horizontal", 2),
    Sketcher.Constraint("Horizontal", 4),
    Sketcher.Constraint("Horizontal", 6),
    Sketcher.Constraint("Horizontal", 8),
    Sketcher.Constraint("Horizontal", 10),
    Sketcher.Constraint("Horizontal", 12),
    Sketcher.Constraint("Horizontal", 14),
    Sketcher.Constraint("Horizontal", 16),
    Sketcher.Constraint("Horizontal", 18),
    Sketcher.Constraint("Horizontal", 20),
    Sketcher.Constraint("Horizontal", 22),
    Sketcher.Constraint("Horizontal", 24),
    Sketcher.Constraint("Horizontal", 26),
    Sketcher.Constraint("Horizontal", 28),
    Sketcher.Constraint("Horizontal", 30),
    Sketcher.Constraint("Horizontal", 32),
    Sketcher.Constraint("Horizontal", 34),
    Sketcher.Constraint("Horizontal", 36),
    Sketcher.Constraint("Horizontal", 38),
    Sketcher.Constraint("Horizontal", 40),
    Sketcher.Constraint("Vertical", 42),
    Sketcher.Constraint("Vertical", 44),
    Sketcher.Constraint("Vertical", 46),
    Sketcher.Constraint("Vertical", 48),
    Sketcher.Constraint("Vertical", 50),
    Sketcher.Constraint("Vertical", 52),
    Sketcher.Constraint("Vertical", 54),
    Sketcher.Constraint("Vertical", 56),
    Sketcher.Constraint("Vertical", 58),
    Sketcher.Constraint("Vertical", 60),
    Sketcher.Constraint("Vertical", 62),
    Sketcher.Constraint("Vertical", 64),
    Sketcher.Constraint("Vertical", 66),
    Sketcher.Constraint("Vertical", 68),
    Sketcher.Constraint("Vertical", 70),
    Sketcher.Constraint("Vertical", 72),
    Sketcher.Constraint("Horizontal", 74),
    Sketcher.Constraint("Horizontal", 76),
    Sketcher.Constraint("Horizontal", 78),
    Sketcher.Constraint("Horizontal", 80),
    Sketcher.Constraint("Equal", 0, 1),
    Sketcher.Constraint("Equal", 5, 7),
    Sketcher.Constraint("Equal", 9, 11),
    Sketcher.Constraint("Equal", 13, 15),
    Sketcher.Constraint("Equal", 17, 19),
    Sketcher.Constraint("Equal", 21, 23),
    Sketcher.Constraint("Equal", 25, 27),
    Sketcher.Constraint("Equal", 29, 31),
    Sketcher.Constraint("Equal", 33, 35),
    Sketcher.Constraint("Equal", 37, 39),
    Sketcher.Constraint("Equal", 41, 43),
    Sketcher.Constraint("Equal", 45, 47),
    Sketcher.Constraint("Equal", 49, 51),
    Sketcher.Constraint("Equal", 53, 55),
    Sketcher.Constraint("Equal", 57, 59),
    Sketcher.Constraint("Equal", 61, 63),
    Sketcher.Constraint("Equal", 65, 67),
    Sketcher.Constraint("Equal", 69, 71),
    Sketcher.Constraint("Equal", 73, 75),
    Sketcher.Constraint("Equal", 77, 79),
    Sketcher.Constraint("Horizontal", 5, 3, 7, 3),
    Sketcher.Constraint("Horizontal", 9, 3, 11, 3),
    Sketcher.Constraint("Horizontal", 13, 3, 15, 3),
    Sketcher.Constraint("Horizontal", 17, 3, 19, 3),
    Sketcher.Constraint("Horizontal", 21, 3, 23, 3),
    Sketcher.Constraint("Horizontal", 29, 3, 31, 3),
    Sketcher.Constraint("Horizontal", 33, 3, 35, 3),
    Sketcher.Constraint("Horizontal", 37, 3, 39, 3),
    Sketcher.Constraint("Horizontal", 47, 3, 59, 3),
    Sketcher.Constraint("Horizontal", 49, 3, 61, 3),
    Sketcher.Constraint("Horizontal", 43, 3, 63, 3),
    Sketcher.Constraint("Horizontal", 45, 3, 65, 3),
    Sketcher.Constraint("Horizontal", 57, 3, 67, 3),
    Sketcher.Constraint("Horizontal", 55, 3, 69, 3),
    Sketcher.Constraint("Horizontal", 53, 3, 71, 3),
    Sketcher.Constraint("Horizontal", 51, 3, 73, 3),
    Sketcher.Constraint("Horizontal", 41, 3, 75, 3),
    Sketcher.Constraint("Horizontal", 77, 3, 79, 3),
    Sketcher.Constraint("Vertical", 0, 3, 1, 3),
    Sketcher.Constraint("Vertical", 15, 3, 27, 3),
    Sketcher.Constraint("Vertical", 17, 3, 29, 3),
    Sketcher.Constraint("Vertical", 11, 3, 31, 3),
    Sketcher.Constraint("Vertical", 13, 3, 33, 3),
    Sketcher.Constraint("Vertical", 23, 3, 35, 3),
    Sketcher.Constraint("Vertical", 25, 3, 37, 3),
    Sketcher.Constraint("Vertical", 19, 3, 39, 3),
    Sketcher.Constraint("Vertical", 21, 3, 41, 3),
    Sketcher.Constraint("Vertical", 45, 3, 47, 3),
    Sketcher.Constraint("Vertical", 49, 3, 51, 3),
    Sketcher.Constraint("Vertical", 53, 3, 55, 3),
    Sketcher.Constraint("Vertical", 61, 3, 63, 3),
    Sketcher.Constraint("Vertical", 65, 3, 67, 3),
    Sketcher.Constraint("Vertical", 69, 3, 71, 3),
    Sketcher.Constraint("Vertical", 7, 3, 75, 3),
    Sketcher.Constraint("Vertical", 9, 3, 77, 3),
    Sketcher.Constraint("Vertical", 3, 3, 79, 3),
    Sketcher.Constraint("Vertical", 5, 3, 81, 3),
    Sketcher.Constraint("Equal", 4, 6),
    Sketcher.Constraint("Equal", 8, 10),
    Sketcher.Constraint("Equal", 12, 14),
    Sketcher.Constraint("Equal", 16, 18),
    Sketcher.Constraint("Equal", 20, 22),
    Sketcher.Constraint("Equal", 80, 42),
    Sketcher.Constraint("Equal", 44, 46),
    Sketcher.Constraint("Equal", 48, 50),
    Sketcher.Constraint("Equal", 52, 54),
    Sketcher.Constraint("Diameter", 0, Q("16 mm")),
    Sketcher.Constraint("Radius", 3, Q("3.1 mm")),
    Sketcher.Constraint("DistanceX", 2, 1, 2, 2, Q("10 mm")),
    Sketcher.Constraint("DistanceX", -1, 1, 43, 3, Q("207.409201 mm")),
    Sketcher.Constraint("DistanceX", 59, 3, -1, 1, Q("134.590799 mm")),
    Sketcher.Constraint("DistanceY", -1, 1, 0, 3, Q("160.603218 mm")),
    Sketcher.Constraint("DistanceY", 1, 3, -1, 1, Q("151.496782 mm")),
    Sketcher.Constraint("DistanceY", -1, 1, 3, 3, Q("201.703218 mm")),
    Sketcher.Constraint("DistanceX", -1, 1, 19, 3, Q("39.76714 mm")),
    Sketcher.Constraint("DistanceY", 27, 3, -1, 1, Q("170.896782 mm")),
    Sketcher.Constraint("DistanceY", -1, 1, 43, 3, Q("45.403218 mm")),
    Sketcher.Constraint("DistanceY", -1, 1, 47, 3, Q("135.903218 mm")),
    Sketcher.Constraint("DistanceY", 51, 3, -1, 1, Q("105.096782 mm")),
    Sketcher.Constraint("DistanceY", 55, 3, -1, 1, Q("14.596782 mm")),
    Sketcher.Constraint("DistanceX", -1, 1, 0, 3, Q("191.506904 mm")),
    Sketcher.Constraint("DistanceX", -1, 1, 3, 3, Q("192.206904 mm")),
    Sketcher.Constraint("DistanceX", -1, 1, 7, 3, Q("142.206904 mm")),
    Sketcher.Constraint("DistanceX", 11, 3, -1, 1, Q("114.388158 mm")),
    Sketcher.Constraint("DistanceX", 15, 3, -1, 1, Q("174.388158 mm")),
    Sketcher.Constraint("DistanceX", 23, 3, -1, 1, Q("11.948393 mm")),
])
sketch2.setExpression("Constraints[186]", "Params.sketch2_diameter")
sketch2.setExpression("Constraints[187]", "Params.sketch2_radius")
sketch2.setExpression("Constraints[188]", "Params.sketch2_width")
pocket1 = body.newObject("PartDesign::Pocket", "Pocket")
pocket1.Profile = sketch2
pocket1.setExpression("Length", "Params.pocket1_length")
doc.recompute()

chamfer = body.newObject("PartDesign::Chamfer", "Chamfer")
chamfer.Base = (pocket1, edges_at(pocket1, [
    (0, 8.909, -170.947),
    (0, 162.207, -170.947),
    (0, 205.909, 16.953),
    (0, 205.909, -123.547),
    (0, 205.909, 157.453),
    (0, -136.091, 16.953),
    (0, -136.091, -123.547),
    (0, -136.091, 157.453),
    (0, 162.207, 201.753),
    (0, 8.909, 201.753),
    (0, -144.388, 198.553),
    (0, -144.388, -167.747),
]))
chamfer.setExpression("Size", "Params.chamfer_size")

# Sketch on YZ plane
sketch3 = body.newObject("Sketcher::SketchObject", "Sketch002")
sketch3.AttachmentSupport = (doc.getObject("YZ_Plane"), [""])
sketch3.MapMode = "FlatFace"
add_polygon(sketch3, [(197.286036, -157.145319), (186.013755, -157.145319), (186.013755, -146.045134), (197.286036, -146.045134)])  # lines 0-3
add_polygon(sketch3, [(197.286036, 154.735372), (186.013755, 154.735372), (186.013755, 166.734699), (197.286036, 166.734699)])  # lines 4-7
sketch3.addConstraint([
    Sketcher.Constraint("Horizontal", 0),
    Sketcher.Constraint("Vertical", 1),
    Sketcher.Constraint("Horizontal", 2),
    Sketcher.Constraint("Vertical", 3),
    Sketcher.Constraint("Horizontal", 4),
    Sketcher.Constraint("Vertical", 5),
    Sketcher.Constraint("Horizontal", 6),
    Sketcher.Constraint("Vertical", 7),
    Sketcher.Constraint("Vertical", 1, 2, 4, 2),
    Sketcher.Constraint("Vertical", 3, 2, 6, 2),
    Sketcher.Constraint("DistanceX", 0, 2, 0, 1, Q("11.272281 mm")),
    Sketcher.Constraint("DistanceY", -1, 1, 5, 2, Q("166.734699 mm")),
    Sketcher.Constraint("DistanceY", 1, 1, 1, 2, Q("11.100185 mm")),
    Sketcher.Constraint("DistanceY", 5, 1, 5, 2, Q("11.999328 mm")),
    Sketcher.Constraint("DistanceY", 0, 2, -1, 1, Q("157.145319 mm")),
    Sketcher.Constraint("DistanceX", -1, 1, 0, 2, Q("186.013755 mm")),
])
pad2 = body.newObject("PartDesign::Pad", "Pad001")
pad2.Profile = sketch3
pad2.setExpression("Length", "Params.pad2_length")

doc.recompute()
